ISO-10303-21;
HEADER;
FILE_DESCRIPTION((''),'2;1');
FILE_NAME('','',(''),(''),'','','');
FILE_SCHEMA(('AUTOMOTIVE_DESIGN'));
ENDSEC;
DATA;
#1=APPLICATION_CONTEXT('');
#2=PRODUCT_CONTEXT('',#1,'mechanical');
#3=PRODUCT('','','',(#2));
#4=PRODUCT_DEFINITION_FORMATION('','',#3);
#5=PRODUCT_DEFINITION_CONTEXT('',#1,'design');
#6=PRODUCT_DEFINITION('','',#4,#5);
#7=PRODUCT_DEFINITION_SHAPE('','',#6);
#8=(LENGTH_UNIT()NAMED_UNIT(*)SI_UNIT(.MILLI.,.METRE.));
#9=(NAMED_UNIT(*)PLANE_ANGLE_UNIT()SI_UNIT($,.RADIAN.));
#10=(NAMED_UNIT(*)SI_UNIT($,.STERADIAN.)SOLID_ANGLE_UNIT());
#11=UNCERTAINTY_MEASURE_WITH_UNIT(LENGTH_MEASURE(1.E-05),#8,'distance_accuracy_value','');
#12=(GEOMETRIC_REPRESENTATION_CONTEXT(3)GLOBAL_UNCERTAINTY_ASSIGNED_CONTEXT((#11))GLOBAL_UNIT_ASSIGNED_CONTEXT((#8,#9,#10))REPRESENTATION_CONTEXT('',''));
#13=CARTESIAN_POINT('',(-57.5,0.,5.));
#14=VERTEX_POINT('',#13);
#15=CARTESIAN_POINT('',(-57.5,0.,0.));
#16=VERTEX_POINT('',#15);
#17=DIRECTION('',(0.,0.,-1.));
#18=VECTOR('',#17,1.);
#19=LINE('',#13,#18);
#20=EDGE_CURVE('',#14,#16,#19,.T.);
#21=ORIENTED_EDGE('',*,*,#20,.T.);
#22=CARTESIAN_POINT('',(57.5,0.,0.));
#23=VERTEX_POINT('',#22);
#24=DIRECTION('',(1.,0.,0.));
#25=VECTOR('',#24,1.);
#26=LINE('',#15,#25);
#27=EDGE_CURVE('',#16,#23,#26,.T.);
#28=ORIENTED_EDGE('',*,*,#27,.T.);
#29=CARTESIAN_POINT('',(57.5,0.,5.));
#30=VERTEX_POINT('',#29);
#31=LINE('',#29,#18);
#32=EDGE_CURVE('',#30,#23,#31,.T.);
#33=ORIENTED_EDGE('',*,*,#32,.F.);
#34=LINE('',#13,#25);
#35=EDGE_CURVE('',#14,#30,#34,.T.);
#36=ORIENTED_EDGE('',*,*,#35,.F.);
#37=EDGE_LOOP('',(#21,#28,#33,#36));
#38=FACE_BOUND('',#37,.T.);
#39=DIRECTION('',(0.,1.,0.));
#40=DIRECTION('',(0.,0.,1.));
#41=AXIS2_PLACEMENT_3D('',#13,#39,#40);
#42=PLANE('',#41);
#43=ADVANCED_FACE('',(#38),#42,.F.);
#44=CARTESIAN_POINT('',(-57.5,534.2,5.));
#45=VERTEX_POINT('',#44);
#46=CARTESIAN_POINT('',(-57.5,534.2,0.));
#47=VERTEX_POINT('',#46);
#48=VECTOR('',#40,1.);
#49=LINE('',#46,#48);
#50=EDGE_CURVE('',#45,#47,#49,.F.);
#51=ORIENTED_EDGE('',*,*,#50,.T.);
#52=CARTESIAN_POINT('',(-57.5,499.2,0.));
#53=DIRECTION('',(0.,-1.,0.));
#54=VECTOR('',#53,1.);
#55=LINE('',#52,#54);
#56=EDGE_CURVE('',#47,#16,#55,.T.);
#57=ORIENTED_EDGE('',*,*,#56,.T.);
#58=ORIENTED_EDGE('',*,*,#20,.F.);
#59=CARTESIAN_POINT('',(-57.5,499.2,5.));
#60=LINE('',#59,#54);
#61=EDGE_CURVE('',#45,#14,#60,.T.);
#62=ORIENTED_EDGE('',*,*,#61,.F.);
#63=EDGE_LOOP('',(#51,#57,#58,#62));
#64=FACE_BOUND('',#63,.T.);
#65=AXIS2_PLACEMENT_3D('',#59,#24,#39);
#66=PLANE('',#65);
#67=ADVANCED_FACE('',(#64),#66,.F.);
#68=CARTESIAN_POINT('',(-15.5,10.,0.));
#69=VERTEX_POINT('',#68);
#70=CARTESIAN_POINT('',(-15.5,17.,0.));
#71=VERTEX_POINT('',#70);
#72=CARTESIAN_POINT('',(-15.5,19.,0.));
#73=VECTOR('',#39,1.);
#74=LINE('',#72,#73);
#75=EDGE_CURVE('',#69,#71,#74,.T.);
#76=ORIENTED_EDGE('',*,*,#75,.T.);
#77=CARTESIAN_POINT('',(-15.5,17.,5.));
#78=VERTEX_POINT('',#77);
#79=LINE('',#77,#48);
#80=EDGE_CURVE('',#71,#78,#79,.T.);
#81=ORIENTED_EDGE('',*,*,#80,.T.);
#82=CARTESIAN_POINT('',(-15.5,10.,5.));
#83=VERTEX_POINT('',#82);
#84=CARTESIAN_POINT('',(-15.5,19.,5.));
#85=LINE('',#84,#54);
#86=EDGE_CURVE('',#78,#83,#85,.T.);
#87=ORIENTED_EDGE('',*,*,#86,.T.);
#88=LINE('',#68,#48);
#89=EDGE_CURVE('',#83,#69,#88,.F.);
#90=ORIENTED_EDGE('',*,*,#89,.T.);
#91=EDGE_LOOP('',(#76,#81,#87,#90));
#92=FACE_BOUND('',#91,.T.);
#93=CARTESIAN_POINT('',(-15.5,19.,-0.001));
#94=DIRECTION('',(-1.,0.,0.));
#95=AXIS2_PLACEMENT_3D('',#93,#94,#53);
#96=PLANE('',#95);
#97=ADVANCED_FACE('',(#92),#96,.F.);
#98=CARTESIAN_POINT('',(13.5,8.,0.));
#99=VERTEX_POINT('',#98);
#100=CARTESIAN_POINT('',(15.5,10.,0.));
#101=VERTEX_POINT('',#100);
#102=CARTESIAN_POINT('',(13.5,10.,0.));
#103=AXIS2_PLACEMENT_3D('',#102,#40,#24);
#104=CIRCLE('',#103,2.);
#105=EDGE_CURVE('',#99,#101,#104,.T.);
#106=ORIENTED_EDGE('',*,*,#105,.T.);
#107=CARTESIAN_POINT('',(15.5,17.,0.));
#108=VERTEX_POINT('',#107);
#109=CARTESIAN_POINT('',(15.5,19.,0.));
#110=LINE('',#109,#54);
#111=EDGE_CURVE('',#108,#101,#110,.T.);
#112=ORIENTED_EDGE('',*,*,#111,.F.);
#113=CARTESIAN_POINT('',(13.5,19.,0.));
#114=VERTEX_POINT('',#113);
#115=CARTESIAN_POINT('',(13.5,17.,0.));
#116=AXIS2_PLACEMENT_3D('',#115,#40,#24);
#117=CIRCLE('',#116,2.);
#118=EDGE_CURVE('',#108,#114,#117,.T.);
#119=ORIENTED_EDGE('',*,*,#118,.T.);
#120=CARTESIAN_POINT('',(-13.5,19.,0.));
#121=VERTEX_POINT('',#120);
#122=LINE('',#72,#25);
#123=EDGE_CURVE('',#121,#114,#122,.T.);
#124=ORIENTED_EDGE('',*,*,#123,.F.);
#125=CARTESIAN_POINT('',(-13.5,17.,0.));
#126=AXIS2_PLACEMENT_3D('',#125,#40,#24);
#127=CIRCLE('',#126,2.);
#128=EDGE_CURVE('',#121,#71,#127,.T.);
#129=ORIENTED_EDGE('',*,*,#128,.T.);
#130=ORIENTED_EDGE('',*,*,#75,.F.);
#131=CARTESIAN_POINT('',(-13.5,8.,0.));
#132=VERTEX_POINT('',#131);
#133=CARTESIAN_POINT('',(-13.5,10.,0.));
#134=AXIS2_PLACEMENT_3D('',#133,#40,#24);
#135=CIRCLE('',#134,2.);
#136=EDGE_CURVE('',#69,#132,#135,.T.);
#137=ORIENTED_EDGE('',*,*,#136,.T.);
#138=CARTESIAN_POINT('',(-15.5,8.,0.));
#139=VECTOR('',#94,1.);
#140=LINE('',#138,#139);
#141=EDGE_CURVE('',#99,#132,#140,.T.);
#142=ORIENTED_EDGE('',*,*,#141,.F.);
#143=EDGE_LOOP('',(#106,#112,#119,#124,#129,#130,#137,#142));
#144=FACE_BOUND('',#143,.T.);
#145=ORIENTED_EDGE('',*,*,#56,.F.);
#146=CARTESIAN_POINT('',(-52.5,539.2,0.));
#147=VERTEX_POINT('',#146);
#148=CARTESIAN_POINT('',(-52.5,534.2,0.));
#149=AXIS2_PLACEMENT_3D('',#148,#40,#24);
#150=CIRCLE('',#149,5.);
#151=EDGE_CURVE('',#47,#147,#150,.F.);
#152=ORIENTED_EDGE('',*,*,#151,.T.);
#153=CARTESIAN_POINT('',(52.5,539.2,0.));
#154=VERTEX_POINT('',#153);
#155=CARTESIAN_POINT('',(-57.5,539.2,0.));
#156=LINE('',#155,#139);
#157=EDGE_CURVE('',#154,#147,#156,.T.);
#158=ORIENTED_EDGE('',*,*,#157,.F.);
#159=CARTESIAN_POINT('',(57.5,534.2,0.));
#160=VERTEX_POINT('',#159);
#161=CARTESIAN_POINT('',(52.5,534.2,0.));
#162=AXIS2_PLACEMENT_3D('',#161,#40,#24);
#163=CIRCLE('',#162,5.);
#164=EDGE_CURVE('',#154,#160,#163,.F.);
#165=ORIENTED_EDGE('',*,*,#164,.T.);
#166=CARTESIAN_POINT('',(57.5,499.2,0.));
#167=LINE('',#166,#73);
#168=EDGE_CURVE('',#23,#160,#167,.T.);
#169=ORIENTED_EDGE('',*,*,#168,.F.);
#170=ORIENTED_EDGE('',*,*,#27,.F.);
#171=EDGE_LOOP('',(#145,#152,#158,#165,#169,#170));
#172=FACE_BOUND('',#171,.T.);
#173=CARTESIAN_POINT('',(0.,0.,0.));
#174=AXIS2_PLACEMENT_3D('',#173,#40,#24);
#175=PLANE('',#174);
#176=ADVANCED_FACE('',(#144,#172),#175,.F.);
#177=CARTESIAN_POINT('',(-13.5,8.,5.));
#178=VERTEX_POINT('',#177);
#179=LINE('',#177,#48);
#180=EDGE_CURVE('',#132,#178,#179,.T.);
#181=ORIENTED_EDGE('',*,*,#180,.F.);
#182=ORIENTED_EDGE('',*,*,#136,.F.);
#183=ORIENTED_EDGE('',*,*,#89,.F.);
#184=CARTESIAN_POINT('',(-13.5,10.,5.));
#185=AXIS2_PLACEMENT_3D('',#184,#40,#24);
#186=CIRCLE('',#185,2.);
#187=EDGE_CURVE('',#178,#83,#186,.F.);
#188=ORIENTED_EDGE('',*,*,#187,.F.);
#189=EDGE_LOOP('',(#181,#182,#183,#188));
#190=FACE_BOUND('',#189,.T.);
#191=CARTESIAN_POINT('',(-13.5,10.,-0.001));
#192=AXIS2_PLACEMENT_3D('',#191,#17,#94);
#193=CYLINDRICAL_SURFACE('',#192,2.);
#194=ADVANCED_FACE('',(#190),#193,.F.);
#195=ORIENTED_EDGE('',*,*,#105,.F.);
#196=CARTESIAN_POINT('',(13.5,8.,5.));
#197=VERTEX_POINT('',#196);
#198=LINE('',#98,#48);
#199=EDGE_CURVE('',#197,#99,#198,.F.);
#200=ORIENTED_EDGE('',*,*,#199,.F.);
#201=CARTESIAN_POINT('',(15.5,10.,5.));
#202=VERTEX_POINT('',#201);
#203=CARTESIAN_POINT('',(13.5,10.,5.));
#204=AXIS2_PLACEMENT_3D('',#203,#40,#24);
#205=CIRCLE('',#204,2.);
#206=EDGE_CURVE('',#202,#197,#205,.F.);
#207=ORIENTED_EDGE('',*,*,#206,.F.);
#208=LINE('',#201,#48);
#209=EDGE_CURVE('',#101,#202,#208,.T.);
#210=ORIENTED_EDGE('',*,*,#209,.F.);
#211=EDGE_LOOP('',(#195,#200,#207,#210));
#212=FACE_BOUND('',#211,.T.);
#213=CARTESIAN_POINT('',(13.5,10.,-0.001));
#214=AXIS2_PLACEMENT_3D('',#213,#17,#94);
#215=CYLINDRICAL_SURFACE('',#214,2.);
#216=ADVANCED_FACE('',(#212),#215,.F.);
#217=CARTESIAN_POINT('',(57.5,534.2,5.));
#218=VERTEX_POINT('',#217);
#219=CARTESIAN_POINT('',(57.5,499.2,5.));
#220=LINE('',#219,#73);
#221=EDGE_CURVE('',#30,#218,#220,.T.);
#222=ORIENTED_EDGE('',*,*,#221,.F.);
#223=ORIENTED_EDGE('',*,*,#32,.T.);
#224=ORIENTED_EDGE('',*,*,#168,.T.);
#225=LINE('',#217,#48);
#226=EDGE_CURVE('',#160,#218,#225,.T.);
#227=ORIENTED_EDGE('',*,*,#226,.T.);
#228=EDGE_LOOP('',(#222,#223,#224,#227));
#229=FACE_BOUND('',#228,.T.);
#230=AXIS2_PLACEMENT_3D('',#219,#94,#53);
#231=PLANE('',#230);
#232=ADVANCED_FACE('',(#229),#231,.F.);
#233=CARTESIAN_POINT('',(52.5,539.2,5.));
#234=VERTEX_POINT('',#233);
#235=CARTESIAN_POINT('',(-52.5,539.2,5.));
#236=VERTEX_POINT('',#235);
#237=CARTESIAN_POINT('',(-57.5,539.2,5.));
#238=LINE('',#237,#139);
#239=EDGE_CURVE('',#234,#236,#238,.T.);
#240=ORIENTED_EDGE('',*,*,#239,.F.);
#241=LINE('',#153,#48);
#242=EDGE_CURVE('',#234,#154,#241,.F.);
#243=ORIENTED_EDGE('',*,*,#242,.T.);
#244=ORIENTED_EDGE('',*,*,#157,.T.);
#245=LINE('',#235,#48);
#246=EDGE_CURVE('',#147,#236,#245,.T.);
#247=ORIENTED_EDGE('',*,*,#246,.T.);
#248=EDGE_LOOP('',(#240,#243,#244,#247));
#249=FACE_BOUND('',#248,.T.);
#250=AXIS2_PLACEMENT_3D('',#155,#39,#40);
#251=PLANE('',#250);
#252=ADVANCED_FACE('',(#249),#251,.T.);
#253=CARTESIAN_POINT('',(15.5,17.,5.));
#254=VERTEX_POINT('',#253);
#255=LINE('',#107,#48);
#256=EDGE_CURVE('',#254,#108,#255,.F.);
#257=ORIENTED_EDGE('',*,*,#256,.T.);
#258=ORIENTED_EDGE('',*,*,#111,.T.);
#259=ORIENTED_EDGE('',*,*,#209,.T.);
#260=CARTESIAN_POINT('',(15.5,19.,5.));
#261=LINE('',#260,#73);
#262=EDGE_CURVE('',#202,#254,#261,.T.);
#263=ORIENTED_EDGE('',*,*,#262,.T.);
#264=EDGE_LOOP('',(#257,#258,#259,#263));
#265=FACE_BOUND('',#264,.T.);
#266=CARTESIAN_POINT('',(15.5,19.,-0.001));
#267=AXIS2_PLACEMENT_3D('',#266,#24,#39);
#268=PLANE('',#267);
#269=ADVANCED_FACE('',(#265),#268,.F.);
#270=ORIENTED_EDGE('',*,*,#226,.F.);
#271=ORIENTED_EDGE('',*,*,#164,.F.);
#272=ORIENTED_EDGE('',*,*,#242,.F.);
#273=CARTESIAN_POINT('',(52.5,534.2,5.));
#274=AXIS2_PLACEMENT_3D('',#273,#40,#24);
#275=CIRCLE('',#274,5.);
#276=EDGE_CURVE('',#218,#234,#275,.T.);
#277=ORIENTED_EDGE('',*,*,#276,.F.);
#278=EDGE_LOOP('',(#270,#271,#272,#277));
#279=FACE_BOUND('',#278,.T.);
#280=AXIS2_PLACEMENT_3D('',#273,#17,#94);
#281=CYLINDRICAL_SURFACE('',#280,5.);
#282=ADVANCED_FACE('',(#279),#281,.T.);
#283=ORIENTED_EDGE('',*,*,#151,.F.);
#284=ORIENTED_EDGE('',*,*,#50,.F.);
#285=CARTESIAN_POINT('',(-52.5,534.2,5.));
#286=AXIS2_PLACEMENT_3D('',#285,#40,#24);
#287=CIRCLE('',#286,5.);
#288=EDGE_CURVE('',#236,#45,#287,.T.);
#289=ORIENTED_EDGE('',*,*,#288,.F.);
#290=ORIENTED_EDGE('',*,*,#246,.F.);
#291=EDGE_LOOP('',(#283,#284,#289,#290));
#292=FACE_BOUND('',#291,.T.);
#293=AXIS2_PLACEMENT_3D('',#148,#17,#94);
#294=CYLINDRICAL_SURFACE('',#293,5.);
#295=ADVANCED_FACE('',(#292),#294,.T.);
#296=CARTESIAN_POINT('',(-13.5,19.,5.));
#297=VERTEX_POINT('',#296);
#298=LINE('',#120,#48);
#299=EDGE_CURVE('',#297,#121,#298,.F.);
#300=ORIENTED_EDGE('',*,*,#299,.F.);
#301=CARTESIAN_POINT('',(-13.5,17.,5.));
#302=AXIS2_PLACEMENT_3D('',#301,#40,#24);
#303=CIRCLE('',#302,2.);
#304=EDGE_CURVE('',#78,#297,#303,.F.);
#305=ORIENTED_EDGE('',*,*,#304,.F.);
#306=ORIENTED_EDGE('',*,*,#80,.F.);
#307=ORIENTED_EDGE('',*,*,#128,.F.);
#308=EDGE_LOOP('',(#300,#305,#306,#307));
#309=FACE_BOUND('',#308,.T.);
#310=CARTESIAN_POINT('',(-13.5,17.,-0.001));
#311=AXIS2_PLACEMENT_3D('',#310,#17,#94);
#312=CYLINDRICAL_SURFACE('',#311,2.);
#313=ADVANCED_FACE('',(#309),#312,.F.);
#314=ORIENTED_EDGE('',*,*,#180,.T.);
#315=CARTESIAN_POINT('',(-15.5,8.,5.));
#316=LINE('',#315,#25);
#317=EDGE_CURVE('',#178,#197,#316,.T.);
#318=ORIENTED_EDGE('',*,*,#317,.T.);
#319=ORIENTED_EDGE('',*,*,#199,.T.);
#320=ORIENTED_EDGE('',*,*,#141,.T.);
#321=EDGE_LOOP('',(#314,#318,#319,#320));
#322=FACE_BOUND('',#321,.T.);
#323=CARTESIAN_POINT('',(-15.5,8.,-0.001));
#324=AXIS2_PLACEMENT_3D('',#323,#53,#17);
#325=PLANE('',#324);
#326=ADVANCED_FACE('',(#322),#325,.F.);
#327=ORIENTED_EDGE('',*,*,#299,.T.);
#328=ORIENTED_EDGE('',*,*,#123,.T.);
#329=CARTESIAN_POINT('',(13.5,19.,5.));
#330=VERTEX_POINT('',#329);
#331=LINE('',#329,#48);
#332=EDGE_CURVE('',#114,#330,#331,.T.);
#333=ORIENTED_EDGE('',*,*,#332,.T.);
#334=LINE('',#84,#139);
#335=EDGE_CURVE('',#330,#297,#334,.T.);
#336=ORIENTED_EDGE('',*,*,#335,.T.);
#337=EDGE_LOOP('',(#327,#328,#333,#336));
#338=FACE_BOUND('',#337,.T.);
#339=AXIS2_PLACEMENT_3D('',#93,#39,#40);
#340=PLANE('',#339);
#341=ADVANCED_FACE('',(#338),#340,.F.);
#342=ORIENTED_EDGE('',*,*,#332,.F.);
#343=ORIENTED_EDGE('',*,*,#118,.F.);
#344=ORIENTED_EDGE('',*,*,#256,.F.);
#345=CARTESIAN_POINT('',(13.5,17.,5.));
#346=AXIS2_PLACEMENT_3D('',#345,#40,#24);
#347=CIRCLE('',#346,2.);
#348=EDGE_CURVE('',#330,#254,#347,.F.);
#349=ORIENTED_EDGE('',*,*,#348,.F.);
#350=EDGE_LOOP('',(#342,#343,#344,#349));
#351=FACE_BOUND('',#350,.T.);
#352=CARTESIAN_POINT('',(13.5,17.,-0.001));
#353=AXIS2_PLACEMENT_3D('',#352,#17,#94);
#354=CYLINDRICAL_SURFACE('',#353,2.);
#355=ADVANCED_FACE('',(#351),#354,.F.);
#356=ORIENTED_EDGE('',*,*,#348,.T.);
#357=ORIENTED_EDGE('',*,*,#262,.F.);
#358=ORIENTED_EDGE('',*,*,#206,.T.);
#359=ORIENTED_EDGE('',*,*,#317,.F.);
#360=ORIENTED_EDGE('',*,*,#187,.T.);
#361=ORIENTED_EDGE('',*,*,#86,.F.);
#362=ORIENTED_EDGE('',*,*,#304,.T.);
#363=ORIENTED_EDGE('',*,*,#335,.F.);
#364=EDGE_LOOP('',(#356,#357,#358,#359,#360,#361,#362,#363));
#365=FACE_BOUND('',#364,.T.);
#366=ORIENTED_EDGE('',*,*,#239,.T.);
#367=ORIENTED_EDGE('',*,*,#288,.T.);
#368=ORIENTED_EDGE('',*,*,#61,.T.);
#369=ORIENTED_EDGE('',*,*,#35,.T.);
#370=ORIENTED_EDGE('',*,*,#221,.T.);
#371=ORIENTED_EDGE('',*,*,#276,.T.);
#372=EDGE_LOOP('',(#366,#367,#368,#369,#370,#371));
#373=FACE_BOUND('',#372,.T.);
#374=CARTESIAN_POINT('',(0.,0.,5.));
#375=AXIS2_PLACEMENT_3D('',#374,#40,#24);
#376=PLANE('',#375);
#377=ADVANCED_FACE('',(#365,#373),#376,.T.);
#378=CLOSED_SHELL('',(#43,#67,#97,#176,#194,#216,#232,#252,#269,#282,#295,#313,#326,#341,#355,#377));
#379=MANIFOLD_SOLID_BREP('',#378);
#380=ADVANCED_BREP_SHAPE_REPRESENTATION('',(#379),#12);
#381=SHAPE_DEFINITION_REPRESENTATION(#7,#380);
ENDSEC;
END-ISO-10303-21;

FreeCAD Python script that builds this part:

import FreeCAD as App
import Part
import Sketcher
from FreeCAD import Vector
Q = App.Units.Quantity


def edges_at(feature, points):
    """Names of the edges that pass closest to the given points."""
    edges = feature.Shape.Edges
    near = lambda p: min(range(len(edges)), key=lambda i: edges[i].distToShape(Part.Vertex(*p))[0])
    return sorted({f"Edge{near(p) + 1}" for p in points})

doc = App.newDocument("Part")
params = doc.addObject("Spreadsheet::Sheet", "Params")
for row, (alias, value) in enumerate([
    ("sketch1_width", "115 mm"),
    ("sketch1_height", "499.2 mm"),
    ("pad1_length", "5 mm"),
    ("sketch2_width", "31 mm"),
    ("sketch2_height", "11 mm"),
    ("fillet_radius", "2 mm"),
    ("sketch3_width", "115 mm"),
    ("sketch3_height", "40 mm"),
    ("pad2_length", "5 mm"),
    ("fillet2_radius", "5 mm"),
], start=1):
    params.set(f"A{row}", alias)
    params.set(f"B{row}", "=" + value)
    params.setAlias(f"B{row}", alias)

body = doc.addObject("PartDesign::Body", "Body")

# Sketch on XY plane
sketch1 = body.newObject("Sketcher::SketchObject", "Sketch")
sketch1.AttachmentSupport = (doc.getObject("XY_Plane"), [""])
sketch1.MapMode = "FlatFace"
sketch1.addGeometry(Part.LineSegment(Vector(-58, 499, 0), Vector(-58, 0, 0)), False)
sketch1.addGeometry(Part.LineSegment(Vector(-58, 0, 0), Vector(58, 0, 0)), False)
sketch1.addGeometry(Part.LineSegment(Vector(58, 0, 0), Vector(58, 499, 0)), False)
sketch1.addGeometry(Part.LineSegment(Vector(58, 499, 0), Vector(-58, 499, 0)), False)
sketch1.addConstraint(Sketcher.Constraint("Coincident", 0, 2, 1, 1))
sketch1.addConstraint(Sketcher.Constraint("Coincident", 1, 2, 2, 1))
sketch1.addConstraint(Sketcher.Constraint("Coincident", 2, 2, 3, 1))
sketch1.addConstraint(Sketcher.Constraint("Coincident", 3, 2, 0, 1))
sketch1.addConstraint(Sketcher.Constraint("Vertical", 0))
sketch1.addConstraint(Sketcher.Constraint("Horizontal", 1))
sketch1.addConstraint(Sketcher.Constraint("Vertical", 2))
sketch1.addConstraint(Sketcher.Constraint("Horizontal", 3))
sketch1.addConstraint(Sketcher.Constraint("Symmetric", 0, 2, 1, 2, -1, 1))
sketch1.addConstraint(Sketcher.Constraint("DistanceX", 1, 1, 1, 2, Q("115 mm")))
sketch1.addConstraint(Sketcher.Constraint("DistanceY", 0, 2, 0, 1, Q("499.2 mm")))
sketch1.setExpression("Constraints[9]", "Params.sketch1_width")
sketch1.setExpression("Constraints[10]", "Params.sketch1_height")
pad1 = body.newObject("PartDesign::Pad", "Pad")
pad1.Profile = sketch1
pad1.setExpression("Length", "Params.pad1_length")

# Sketch on XY plane
sketch2 = body.newObject("Sketcher::SketchObject", "Sketch001")
sketch2.AttachmentSupport = (doc.getObject("XY_Plane"), [""])
sketch2.MapMode = "FlatFace"
sketch2.AttachmentOffset = App.Placement(Vector(0, 0, 5), App.Rotation())
sketch2.addGeometry(Part.LineSegment(Vector(-16, 19, 0), Vector(-16, 8, 0)), False)
sketch2.addGeometry(Part.LineSegment(Vector(-16, 8, 0), Vector(16, 8, 0)), False)
sketch2.addGeometry(Part.LineSegment(Vector(16, 8, 0), Vector(16, 19, 0)), False)
sketch2.addGeometry(Part.LineSegment(Vector(16, 19, 0), Vector(-16, 19, 0)), False)
sketch2.addConstraint(Sketcher.Constraint("Coincident", 0, 2, 1, 1))
sketch2.addConstraint(Sketcher.Constraint("Coincident", 1, 2, 2, 1))
sketch2.addConstraint(Sketcher.Constraint("Coincident", 2, 2, 3, 1))
sketch2.addConstraint(Sketcher.Constraint("Coincident", 3, 2, 0, 1))
sketch2.addConstraint(Sketcher.Constraint("Vertical", 0))
sketch2.addConstraint(Sketcher.Constraint("Horizontal", 1))
sketch2.addConstraint(Sketcher.Constraint("Vertical", 2))
sketch2.addConstraint(Sketcher.Constraint("Horizontal", 3))
sketch2.addConstraint(Sketcher.Constraint("DistanceX", 1, 1, 1, 2, Q("31 mm")))
sketch2.addConstraint(Sketcher.Constraint("DistanceY", 0, 2, 0, 1, Q("11 mm")))
sketch2.addConstraint(Sketcher.Constraint("DistanceY", -1, 1, 0, 2, Q("8 mm")))
sketch2.addConstraint(Sketcher.Constraint("DistanceX", 0, 2, -1, 1, Q("15.5 mm")))
sketch2.setExpression("Constraints[8]", "Params.sketch2_width")
sketch2.setExpression("Constraints[9]", "Params.sketch2_height")
pocket1 = body.newObject("PartDesign::Pocket", "Pocket")
pocket1.Profile = sketch2
pocket1.Type = "UpToFirst"
doc.recompute()

fillet = body.newObject("PartDesign::Fillet", "Fillet")
fillet.Base = (pocket1, edges_at(pocket1, [
    (-15.5, 8, 2.5),
    (-15.5, 19, 2.5),
    (15.5, 19, 2.5),
    (15.5, 8, 2.5),
]))
fillet.setExpression("Radius", "Params.fillet_radius")

# Sketch on XY plane
sketch3 = body.newObject("Sketcher::SketchObject", "Sketch002")
sketch3.AttachmentSupport = (doc.getObject("XY_Plane"), [""])
sketch3.MapMode = "FlatFace"
sketch3.AttachmentOffset = App.Placement(Vector(0, 0, 5), App.Rotation())
sketch3.addGeometry(Part.LineSegment(Vector(-58, 539, 0), Vector(-58, 499, 0)), False)
sketch3.addGeometry(Part.LineSegment(Vector(-58, 499, 0), Vector(58, 499, 0)), False)
sketch3.addGeometry(Part.LineSegment(Vector(58, 499, 0), Vector(58, 539, 0)), False)
sketch3.addGeometry(Part.LineSegment(Vector(58, 539, 0), Vector(-58, 539, 0)), False)
sketch3.addConstraint(Sketcher.Constraint("Coincident", 0, 2, 1, 1))
sketch3.addConstraint(Sketcher.Constraint("Coincident", 1, 2, 2, 1))
sketch3.addConstraint(Sketcher.Constraint("Coincident", 2, 2, 3, 1))
sketch3.addConstraint(Sketcher.Constraint("Coincident", 3, 2, 0, 1))
sketch3.addConstraint(Sketcher.Constraint("Vertical", 0))
sketch3.addConstraint(Sketcher.Constraint("Horizontal", 1))
sketch3.addConstraint(Sketcher.Constraint("Vertical", 2))
sketch3.addConstraint(Sketcher.Constraint("Horizontal", 3))
sketch3.addConstraint(Sketcher.Constraint("DistanceX", 1, 1, 1, 2, Q("115 mm")))
sketch3.addConstraint(Sketcher.Constraint("DistanceY", 0, 2, 0, 1, Q("40 mm")))
sketch3.addConstraint(Sketcher.Constraint("DistanceX", 0, 2, -1, 1, Q("57.5 mm")))
sketch3.addConstraint(Sketcher.Constraint("DistanceY", -1, 1, 0, 2, Q("499.2 mm")))
sketch3.setExpression("Constraints[8]", "Params.sketch3_width")
sketch3.setExpression("Constraints[9]", "Params.sketch3_height")
pad2 = body.newObject("PartDesign::Pad", "Pad001")
pad2.Profile = sketch3
pad2.setExpression("Length", "Params.pad2_length")
pad2.Reversed = True
doc.recompute()

fillet2 = body.newObject("PartDesign::Fillet", "Fillet001")
fillet2.Base = (pad2, edges_at(pad2, [(-57.5, 539.2, 2.5), (57.5, 539.2, 2.5)]))
fillet2.setExpression("Radius", "Params.fillet2_radius")

doc.recompute()
